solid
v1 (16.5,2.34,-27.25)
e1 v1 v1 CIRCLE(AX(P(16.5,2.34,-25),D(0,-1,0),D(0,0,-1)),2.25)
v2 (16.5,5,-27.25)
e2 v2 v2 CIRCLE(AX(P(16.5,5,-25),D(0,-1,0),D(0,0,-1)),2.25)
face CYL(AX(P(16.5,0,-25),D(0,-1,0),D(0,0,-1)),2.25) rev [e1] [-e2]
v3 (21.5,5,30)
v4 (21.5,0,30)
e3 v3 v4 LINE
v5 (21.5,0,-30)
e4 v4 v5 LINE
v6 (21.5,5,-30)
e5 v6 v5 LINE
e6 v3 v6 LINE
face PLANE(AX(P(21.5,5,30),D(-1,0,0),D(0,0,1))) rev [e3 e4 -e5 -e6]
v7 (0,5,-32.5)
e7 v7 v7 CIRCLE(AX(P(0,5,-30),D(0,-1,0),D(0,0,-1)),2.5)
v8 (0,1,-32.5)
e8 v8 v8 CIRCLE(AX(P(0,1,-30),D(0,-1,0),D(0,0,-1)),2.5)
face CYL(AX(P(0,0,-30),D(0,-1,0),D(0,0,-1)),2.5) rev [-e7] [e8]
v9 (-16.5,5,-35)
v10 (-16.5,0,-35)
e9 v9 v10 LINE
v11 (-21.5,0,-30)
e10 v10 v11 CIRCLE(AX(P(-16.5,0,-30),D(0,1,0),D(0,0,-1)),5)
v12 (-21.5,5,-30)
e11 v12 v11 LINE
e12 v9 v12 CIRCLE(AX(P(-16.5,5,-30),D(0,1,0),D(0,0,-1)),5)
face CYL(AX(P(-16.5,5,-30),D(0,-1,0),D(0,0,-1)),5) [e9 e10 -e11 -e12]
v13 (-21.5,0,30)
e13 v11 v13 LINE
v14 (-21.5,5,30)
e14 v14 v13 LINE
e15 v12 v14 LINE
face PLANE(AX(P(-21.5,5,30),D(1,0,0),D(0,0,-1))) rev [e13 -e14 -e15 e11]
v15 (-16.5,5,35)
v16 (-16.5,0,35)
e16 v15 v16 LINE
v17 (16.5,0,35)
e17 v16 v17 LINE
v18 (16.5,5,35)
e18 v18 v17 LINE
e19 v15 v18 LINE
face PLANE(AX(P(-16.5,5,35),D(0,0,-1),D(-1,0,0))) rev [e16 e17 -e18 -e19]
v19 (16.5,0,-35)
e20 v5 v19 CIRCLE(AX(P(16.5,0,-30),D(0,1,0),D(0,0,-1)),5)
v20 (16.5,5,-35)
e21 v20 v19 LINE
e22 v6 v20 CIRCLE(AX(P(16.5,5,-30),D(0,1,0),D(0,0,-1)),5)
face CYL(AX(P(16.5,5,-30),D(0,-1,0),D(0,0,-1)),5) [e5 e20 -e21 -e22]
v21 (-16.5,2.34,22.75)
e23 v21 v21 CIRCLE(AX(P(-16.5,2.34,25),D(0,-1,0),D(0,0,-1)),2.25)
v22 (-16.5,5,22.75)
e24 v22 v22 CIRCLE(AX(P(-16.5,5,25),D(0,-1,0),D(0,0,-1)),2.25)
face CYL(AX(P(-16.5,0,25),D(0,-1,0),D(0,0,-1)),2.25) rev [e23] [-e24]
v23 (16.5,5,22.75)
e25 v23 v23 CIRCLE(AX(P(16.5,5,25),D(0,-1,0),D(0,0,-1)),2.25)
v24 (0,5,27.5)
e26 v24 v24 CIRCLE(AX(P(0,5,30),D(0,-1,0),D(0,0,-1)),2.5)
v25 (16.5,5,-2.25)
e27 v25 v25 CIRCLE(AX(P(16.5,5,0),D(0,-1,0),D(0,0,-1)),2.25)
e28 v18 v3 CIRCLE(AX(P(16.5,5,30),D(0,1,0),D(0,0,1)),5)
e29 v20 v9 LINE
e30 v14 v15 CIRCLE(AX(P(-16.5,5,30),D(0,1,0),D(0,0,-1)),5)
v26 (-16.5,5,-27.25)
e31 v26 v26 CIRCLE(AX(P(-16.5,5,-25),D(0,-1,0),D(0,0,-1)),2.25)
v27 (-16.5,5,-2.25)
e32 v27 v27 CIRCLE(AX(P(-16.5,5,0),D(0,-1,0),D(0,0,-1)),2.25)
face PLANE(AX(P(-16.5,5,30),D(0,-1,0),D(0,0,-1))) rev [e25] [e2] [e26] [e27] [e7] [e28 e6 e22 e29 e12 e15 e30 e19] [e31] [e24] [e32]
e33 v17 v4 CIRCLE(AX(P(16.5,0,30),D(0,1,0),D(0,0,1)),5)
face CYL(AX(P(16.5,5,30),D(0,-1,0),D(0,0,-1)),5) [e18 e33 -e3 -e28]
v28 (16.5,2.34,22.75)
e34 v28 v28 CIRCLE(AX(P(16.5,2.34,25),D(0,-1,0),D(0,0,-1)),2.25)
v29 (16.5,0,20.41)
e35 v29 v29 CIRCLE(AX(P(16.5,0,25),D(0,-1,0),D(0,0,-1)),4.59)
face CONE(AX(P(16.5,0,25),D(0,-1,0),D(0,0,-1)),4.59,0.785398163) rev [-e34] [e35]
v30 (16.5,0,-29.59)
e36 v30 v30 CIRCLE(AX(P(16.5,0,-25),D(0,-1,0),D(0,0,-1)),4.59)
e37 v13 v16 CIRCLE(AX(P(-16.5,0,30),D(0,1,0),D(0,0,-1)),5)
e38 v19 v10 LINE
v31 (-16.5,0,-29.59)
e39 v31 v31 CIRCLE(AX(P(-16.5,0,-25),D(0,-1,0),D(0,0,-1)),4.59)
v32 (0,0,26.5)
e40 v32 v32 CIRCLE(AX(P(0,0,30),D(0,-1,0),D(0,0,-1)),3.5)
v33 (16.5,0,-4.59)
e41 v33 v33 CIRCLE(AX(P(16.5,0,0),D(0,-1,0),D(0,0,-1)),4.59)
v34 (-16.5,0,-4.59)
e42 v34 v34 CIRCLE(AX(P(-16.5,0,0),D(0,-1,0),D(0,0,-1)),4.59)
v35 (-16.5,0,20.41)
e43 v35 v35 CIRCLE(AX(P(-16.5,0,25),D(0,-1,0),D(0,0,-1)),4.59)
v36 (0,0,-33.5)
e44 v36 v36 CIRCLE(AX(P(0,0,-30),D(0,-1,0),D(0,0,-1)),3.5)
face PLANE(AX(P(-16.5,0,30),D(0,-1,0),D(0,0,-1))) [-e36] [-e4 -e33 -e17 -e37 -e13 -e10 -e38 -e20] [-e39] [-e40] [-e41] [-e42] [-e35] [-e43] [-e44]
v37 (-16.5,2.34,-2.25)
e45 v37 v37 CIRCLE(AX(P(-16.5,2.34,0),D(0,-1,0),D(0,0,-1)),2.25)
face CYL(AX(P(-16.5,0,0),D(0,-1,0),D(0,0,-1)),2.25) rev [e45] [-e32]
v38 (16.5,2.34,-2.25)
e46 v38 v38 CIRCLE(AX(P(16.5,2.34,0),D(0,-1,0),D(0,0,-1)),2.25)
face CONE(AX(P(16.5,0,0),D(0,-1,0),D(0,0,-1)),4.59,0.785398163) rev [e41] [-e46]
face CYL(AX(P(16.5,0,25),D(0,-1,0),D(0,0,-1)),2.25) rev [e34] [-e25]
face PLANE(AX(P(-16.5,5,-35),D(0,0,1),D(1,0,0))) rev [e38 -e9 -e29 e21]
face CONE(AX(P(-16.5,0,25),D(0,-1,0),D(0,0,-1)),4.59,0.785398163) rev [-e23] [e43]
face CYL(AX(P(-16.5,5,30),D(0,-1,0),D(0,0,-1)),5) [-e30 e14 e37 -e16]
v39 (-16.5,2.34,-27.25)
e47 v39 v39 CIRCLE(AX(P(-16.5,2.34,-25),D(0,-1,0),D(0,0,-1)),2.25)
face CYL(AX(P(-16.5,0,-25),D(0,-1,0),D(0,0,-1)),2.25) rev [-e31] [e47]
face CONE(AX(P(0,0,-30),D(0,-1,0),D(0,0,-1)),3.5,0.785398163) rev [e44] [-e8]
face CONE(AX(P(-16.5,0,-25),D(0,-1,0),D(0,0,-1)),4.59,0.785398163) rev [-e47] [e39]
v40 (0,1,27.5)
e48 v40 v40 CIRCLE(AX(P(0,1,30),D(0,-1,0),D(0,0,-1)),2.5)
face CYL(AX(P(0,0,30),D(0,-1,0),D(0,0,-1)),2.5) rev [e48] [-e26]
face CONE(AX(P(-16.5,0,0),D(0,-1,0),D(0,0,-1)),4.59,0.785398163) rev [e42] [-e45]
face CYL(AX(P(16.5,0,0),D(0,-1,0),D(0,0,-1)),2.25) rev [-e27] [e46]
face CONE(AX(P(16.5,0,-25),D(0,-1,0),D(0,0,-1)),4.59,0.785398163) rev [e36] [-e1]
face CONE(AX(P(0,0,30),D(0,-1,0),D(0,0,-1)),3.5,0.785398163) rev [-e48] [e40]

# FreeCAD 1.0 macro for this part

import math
import FreeCAD as App
import Part
import Sketcher
Q = App.Units.Quantity

doc = App.newDocument("Part")
body = doc.addObject("PartDesign::Body", "Body")

sketch1 = body.newObject("Sketcher::SketchObject", "Sketch")
sketch1.AttachmentSupport = (doc.getObject("XZ_Plane"), [""])
sketch1.MapMode = "FlatFace"
sketch1.addGeometry([
    Part.LineSegment(App.Vector(-16.5, 35, 0), App.Vector(16.5, 35, 0)),
    Part.ArcOfCircle(Part.Circle(App.Vector(16.5, 30, 0), App.Vector(0, 0, 1), 5), math.radians(0), math.radians(90)),
    Part.LineSegment(App.Vector(21.5, 30, 0), App.Vector(21.5, -30, 0)),
    Part.ArcOfCircle(Part.Circle(App.Vector(16.5, -30, 0), App.Vector(0, 0, 1), 5), math.radians(-90), math.radians(0)),
    Part.LineSegment(App.Vector(16.5, -35, 0), App.Vector(-16.5, -35, 0)),
    Part.ArcOfCircle(Part.Circle(App.Vector(-16.5, -30, 0), App.Vector(0, 0, 1), 5), math.radians(180), math.radians(270)),
    Part.LineSegment(App.Vector(-21.5, -30, 0), App.Vector(-21.5, 30, 0)),
    Part.ArcOfCircle(Part.Circle(App.Vector(-16.5, 30, 0), App.Vector(0, 0, 1), 5), math.radians(90), math.radians(180)),
    Part.Circle(App.Vector(-16.5, 25, 0), App.Vector(0, 0, 1), 2.2),
    Part.Circle(App.Vector(16.5, 25, 0), App.Vector(0, 0, 1), 2.2),
    Part.Circle(App.Vector(-16.5, 0, 0), App.Vector(0, 0, 1), 2.2),
    Part.Circle(App.Vector(-16.5, -25, 0), App.Vector(0, 0, 1), 2.2),
    Part.Circle(App.Vector(16.5, 0, 0), App.Vector(0, 0, 1), 2.2),
    Part.Circle(App.Vector(16.5, -25, 0), App.Vector(0, 0, 1), 2.2),
], False)
sketch1.addConstraint([
    Sketcher.Constraint("Tangent", 0, 2, 1, 2),
    Sketcher.Constraint("Tangent", 1, 1, 2, 1),
    Sketcher.Constraint("Tangent", 2, 2, 3, 2),
    Sketcher.Constraint("Tangent", 3, 1, 4, 1),
    Sketcher.Constraint("Tangent", 4, 2, 5, 2),
    Sketcher.Constraint("Tangent", 5, 1, 6, 1),
    Sketcher.Constraint("Tangent", 6, 2, 7, 2),
    Sketcher.Constraint("Tangent", 7, 1, 0, 1),
    Sketcher.Constraint("Horizontal", 0),
    Sketcher.Constraint("Vertical", 2),
    Sketcher.Constraint("Horizontal", 4),
    Sketcher.Constraint("Vertical", 6),
    Sketcher.Constraint("Equal", 1, 3),
    Sketcher.Constraint("Equal", 3, 5),
    Sketcher.Constraint("Equal", 5, 7),
    Sketcher.Constraint("Equal", 8, 9),
    Sketcher.Constraint("Equal", 9, 10),
    Sketcher.Constraint("Equal", 10, 11),
    Sketcher.Constraint("Equal", 11, 12),
    Sketcher.Constraint("Equal", 12, 13),
    Sketcher.Constraint("Symmetric", 1, 3, 5, 3, -1, 1),
    Sketcher.Constraint("Symmetric", 9, 3, 11, 3, -1, 1),
    Sketcher.Constraint("Symmetric", 10, 3, 12, 3, -1, 1),
    Sketcher.Constraint("Symmetric", 8, 3, 13, 3, -1, 1),
    Sketcher.Constraint("Symmetric", 8, 3, 9, 3, -2),
    Sketcher.Constraint("PointOnObject", 10, 3, -1),
    Sketcher.Constraint("Vertical", 7, 3, 8, 3),
    Sketcher.Constraint("Vertical", 8, 3, 10, 3),
    Sketcher.Constraint("Radius", 1, Q("5 mm")),
    Sketcher.Constraint("Diameter", 8, Q("4.4 mm")),
    Sketcher.Constraint("DistanceX", 0, 1, 0, 2, Q("33 mm")),
    Sketcher.Constraint("DistanceY", 2, 2, 2, 1, Q("60 mm")),
    Sketcher.Constraint("DistanceY", -1, 1, 8, 3, Q("25 mm")),
])
pad1 = body.newObject("PartDesign::Pad", "Pad")
pad1.Profile = sketch1
pad1.Length = 5
pad1.Reversed = True

sketch2 = body.newObject("Sketcher::SketchObject", "Sketch001")
sketch2.AttachmentSupport = (doc.getObject("XZ_Plane"), [""])
sketch2.MapMode = "FlatFace"
sketch2.AttachmentOffset = App.Placement(App.Vector(0, 0, -5), App.Rotation())
sketch2.addGeometry([
    Part.Circle(App.Vector(0, -30, 0), App.Vector(0, 0, 1), 2),
    Part.Circle(App.Vector(0, 30, 0), App.Vector(0, 0, 1), 2),
], False)
sketch2.addConstraint([
    Sketcher.Constraint("Equal", 0, 1),
    Sketcher.Constraint("Symmetric", 0, 3, 1, 3, -1, 1),
    Sketcher.Constraint("PointOnObject", 0, 3, -2),
    Sketcher.Constraint("Diameter", 0, Q("4 mm")),
    Sketcher.Constraint("DistanceY", 0, 3, -1, 1, Q("30 mm")),
])
pocket1 = body.newObject("PartDesign::Pocket", "Pocket")
pocket1.Profile = sketch2
pocket1.Length = 50
pocket1.Reversed = True

sketch3 = body.newObject("Sketcher::SketchObject", "Sketch002")
sketch3.AttachmentSupport = (doc.getObject("XZ_Plane"), [""])
sketch3.MapMode = "FlatFace"
sketch3.addGeometry([
    Part.Circle(App.Vector(0, -30, 0), App.Vector(0, 0, 1), 2.5),
    Part.Circle(App.Vector(0, 30, 0), App.Vector(0, 0, 1), 2.5),
], False)
sketch3.addConstraint([
    Sketcher.Constraint("Equal", 0, 1),
    Sketcher.Constraint("Symmetric", 0, 3, 1, 3, -1, 1),
    Sketcher.Constraint("PointOnObject", 0, 3, -2),
    Sketcher.Constraint("Diameter", 0, Q("5 mm")),
    Sketcher.Constraint("DistanceY", 0, 3, -1, 1, Q("30 mm")),
])
doc.recompute()
hole = body.newObject("PartDesign::Hole", "Hole")
hole.Profile = sketch3
hole.ThreadType = "None"
hole.Diameter = 5
hole.DepthType = "ThroughAll"
hole.HoleCutType = "Countersink"
hole.HoleCutDiameter = 7
hole.HoleCutCountersinkAngle = 90

sketch4 = body.newObject("Sketcher::SketchObject", "Sketch003")
sketch4.AttachmentSupport = (doc.getObject("XZ_Plane"), [""])
sketch4.MapMode = "FlatFace"
sketch4.addGeometry([
    Part.Circle(App.Vector(16.5, -25, 0), App.Vector(0, 0, 1), 2.25),
    Part.Circle(App.Vector(16.5, 0, 0), App.Vector(0, 0, 1), 2.25),
    Part.Circle(App.Vector(16.5, 25, 0), App.Vector(0, 0, 1), 2.25),
    Part.Circle(App.Vector(-16.5, 25, 0), App.Vector(0, 0, 1), 2.25),
    Part.Circle(App.Vector(-16.5, 0, 0), App.Vector(0, 0, 1), 2.25),
    Part.Circle(App.Vector(-16.5, -25, 0), App.Vector(0, 0, 1), 2.25),
], False)
sketch4.addConstraint([
    Sketcher.Constraint("Equal", 0, 1),
    Sketcher.Constraint("Equal", 1, 2),
    Sketcher.Constraint("Equal", 2, 3),
    Sketcher.Constraint("Equal", 3, 4),
    Sketcher.Constraint("Equal", 4, 5),
    Sketcher.Constraint("Symmetric", 0, 3, 3, 3, -1, 1),
    Sketcher.Constraint("Symmetric", 1, 3, 4, 3, -1, 1),
    Sketcher.Constraint("Symmetric", 2, 3, 5, 3, -1, 1),
    Sketcher.Constraint("Symmetric", 2, 3, 3, 3, -2),
    Sketcher.Constraint("PointOnObject", 1, 3, -1),
    Sketcher.Constraint("Vertical", 0, 3, 1, 3),
    Sketcher.Constraint("Diameter", 0, Q("4.5 mm")),
    Sketcher.Constraint("DistanceY", 0, 3, -1, 1, Q("25 mm")),
    Sketcher.Constraint("DistanceX", 3, 3, 2, 3, Q("33 mm")),
])
doc.recompute()
hole2 = body.newObject("PartDesign::Hole", "Hole001")
hole2.Profile = sketch4
hole2.ThreadType = "None"
hole2.Diameter = 4.5
hole2.DepthType = "ThroughAll"
hole2.HoleCutType = "Countersink"
hole2.HoleCutDiameter = 9.18
hole2.HoleCutCountersinkAngle = 90

doc.recompute()
